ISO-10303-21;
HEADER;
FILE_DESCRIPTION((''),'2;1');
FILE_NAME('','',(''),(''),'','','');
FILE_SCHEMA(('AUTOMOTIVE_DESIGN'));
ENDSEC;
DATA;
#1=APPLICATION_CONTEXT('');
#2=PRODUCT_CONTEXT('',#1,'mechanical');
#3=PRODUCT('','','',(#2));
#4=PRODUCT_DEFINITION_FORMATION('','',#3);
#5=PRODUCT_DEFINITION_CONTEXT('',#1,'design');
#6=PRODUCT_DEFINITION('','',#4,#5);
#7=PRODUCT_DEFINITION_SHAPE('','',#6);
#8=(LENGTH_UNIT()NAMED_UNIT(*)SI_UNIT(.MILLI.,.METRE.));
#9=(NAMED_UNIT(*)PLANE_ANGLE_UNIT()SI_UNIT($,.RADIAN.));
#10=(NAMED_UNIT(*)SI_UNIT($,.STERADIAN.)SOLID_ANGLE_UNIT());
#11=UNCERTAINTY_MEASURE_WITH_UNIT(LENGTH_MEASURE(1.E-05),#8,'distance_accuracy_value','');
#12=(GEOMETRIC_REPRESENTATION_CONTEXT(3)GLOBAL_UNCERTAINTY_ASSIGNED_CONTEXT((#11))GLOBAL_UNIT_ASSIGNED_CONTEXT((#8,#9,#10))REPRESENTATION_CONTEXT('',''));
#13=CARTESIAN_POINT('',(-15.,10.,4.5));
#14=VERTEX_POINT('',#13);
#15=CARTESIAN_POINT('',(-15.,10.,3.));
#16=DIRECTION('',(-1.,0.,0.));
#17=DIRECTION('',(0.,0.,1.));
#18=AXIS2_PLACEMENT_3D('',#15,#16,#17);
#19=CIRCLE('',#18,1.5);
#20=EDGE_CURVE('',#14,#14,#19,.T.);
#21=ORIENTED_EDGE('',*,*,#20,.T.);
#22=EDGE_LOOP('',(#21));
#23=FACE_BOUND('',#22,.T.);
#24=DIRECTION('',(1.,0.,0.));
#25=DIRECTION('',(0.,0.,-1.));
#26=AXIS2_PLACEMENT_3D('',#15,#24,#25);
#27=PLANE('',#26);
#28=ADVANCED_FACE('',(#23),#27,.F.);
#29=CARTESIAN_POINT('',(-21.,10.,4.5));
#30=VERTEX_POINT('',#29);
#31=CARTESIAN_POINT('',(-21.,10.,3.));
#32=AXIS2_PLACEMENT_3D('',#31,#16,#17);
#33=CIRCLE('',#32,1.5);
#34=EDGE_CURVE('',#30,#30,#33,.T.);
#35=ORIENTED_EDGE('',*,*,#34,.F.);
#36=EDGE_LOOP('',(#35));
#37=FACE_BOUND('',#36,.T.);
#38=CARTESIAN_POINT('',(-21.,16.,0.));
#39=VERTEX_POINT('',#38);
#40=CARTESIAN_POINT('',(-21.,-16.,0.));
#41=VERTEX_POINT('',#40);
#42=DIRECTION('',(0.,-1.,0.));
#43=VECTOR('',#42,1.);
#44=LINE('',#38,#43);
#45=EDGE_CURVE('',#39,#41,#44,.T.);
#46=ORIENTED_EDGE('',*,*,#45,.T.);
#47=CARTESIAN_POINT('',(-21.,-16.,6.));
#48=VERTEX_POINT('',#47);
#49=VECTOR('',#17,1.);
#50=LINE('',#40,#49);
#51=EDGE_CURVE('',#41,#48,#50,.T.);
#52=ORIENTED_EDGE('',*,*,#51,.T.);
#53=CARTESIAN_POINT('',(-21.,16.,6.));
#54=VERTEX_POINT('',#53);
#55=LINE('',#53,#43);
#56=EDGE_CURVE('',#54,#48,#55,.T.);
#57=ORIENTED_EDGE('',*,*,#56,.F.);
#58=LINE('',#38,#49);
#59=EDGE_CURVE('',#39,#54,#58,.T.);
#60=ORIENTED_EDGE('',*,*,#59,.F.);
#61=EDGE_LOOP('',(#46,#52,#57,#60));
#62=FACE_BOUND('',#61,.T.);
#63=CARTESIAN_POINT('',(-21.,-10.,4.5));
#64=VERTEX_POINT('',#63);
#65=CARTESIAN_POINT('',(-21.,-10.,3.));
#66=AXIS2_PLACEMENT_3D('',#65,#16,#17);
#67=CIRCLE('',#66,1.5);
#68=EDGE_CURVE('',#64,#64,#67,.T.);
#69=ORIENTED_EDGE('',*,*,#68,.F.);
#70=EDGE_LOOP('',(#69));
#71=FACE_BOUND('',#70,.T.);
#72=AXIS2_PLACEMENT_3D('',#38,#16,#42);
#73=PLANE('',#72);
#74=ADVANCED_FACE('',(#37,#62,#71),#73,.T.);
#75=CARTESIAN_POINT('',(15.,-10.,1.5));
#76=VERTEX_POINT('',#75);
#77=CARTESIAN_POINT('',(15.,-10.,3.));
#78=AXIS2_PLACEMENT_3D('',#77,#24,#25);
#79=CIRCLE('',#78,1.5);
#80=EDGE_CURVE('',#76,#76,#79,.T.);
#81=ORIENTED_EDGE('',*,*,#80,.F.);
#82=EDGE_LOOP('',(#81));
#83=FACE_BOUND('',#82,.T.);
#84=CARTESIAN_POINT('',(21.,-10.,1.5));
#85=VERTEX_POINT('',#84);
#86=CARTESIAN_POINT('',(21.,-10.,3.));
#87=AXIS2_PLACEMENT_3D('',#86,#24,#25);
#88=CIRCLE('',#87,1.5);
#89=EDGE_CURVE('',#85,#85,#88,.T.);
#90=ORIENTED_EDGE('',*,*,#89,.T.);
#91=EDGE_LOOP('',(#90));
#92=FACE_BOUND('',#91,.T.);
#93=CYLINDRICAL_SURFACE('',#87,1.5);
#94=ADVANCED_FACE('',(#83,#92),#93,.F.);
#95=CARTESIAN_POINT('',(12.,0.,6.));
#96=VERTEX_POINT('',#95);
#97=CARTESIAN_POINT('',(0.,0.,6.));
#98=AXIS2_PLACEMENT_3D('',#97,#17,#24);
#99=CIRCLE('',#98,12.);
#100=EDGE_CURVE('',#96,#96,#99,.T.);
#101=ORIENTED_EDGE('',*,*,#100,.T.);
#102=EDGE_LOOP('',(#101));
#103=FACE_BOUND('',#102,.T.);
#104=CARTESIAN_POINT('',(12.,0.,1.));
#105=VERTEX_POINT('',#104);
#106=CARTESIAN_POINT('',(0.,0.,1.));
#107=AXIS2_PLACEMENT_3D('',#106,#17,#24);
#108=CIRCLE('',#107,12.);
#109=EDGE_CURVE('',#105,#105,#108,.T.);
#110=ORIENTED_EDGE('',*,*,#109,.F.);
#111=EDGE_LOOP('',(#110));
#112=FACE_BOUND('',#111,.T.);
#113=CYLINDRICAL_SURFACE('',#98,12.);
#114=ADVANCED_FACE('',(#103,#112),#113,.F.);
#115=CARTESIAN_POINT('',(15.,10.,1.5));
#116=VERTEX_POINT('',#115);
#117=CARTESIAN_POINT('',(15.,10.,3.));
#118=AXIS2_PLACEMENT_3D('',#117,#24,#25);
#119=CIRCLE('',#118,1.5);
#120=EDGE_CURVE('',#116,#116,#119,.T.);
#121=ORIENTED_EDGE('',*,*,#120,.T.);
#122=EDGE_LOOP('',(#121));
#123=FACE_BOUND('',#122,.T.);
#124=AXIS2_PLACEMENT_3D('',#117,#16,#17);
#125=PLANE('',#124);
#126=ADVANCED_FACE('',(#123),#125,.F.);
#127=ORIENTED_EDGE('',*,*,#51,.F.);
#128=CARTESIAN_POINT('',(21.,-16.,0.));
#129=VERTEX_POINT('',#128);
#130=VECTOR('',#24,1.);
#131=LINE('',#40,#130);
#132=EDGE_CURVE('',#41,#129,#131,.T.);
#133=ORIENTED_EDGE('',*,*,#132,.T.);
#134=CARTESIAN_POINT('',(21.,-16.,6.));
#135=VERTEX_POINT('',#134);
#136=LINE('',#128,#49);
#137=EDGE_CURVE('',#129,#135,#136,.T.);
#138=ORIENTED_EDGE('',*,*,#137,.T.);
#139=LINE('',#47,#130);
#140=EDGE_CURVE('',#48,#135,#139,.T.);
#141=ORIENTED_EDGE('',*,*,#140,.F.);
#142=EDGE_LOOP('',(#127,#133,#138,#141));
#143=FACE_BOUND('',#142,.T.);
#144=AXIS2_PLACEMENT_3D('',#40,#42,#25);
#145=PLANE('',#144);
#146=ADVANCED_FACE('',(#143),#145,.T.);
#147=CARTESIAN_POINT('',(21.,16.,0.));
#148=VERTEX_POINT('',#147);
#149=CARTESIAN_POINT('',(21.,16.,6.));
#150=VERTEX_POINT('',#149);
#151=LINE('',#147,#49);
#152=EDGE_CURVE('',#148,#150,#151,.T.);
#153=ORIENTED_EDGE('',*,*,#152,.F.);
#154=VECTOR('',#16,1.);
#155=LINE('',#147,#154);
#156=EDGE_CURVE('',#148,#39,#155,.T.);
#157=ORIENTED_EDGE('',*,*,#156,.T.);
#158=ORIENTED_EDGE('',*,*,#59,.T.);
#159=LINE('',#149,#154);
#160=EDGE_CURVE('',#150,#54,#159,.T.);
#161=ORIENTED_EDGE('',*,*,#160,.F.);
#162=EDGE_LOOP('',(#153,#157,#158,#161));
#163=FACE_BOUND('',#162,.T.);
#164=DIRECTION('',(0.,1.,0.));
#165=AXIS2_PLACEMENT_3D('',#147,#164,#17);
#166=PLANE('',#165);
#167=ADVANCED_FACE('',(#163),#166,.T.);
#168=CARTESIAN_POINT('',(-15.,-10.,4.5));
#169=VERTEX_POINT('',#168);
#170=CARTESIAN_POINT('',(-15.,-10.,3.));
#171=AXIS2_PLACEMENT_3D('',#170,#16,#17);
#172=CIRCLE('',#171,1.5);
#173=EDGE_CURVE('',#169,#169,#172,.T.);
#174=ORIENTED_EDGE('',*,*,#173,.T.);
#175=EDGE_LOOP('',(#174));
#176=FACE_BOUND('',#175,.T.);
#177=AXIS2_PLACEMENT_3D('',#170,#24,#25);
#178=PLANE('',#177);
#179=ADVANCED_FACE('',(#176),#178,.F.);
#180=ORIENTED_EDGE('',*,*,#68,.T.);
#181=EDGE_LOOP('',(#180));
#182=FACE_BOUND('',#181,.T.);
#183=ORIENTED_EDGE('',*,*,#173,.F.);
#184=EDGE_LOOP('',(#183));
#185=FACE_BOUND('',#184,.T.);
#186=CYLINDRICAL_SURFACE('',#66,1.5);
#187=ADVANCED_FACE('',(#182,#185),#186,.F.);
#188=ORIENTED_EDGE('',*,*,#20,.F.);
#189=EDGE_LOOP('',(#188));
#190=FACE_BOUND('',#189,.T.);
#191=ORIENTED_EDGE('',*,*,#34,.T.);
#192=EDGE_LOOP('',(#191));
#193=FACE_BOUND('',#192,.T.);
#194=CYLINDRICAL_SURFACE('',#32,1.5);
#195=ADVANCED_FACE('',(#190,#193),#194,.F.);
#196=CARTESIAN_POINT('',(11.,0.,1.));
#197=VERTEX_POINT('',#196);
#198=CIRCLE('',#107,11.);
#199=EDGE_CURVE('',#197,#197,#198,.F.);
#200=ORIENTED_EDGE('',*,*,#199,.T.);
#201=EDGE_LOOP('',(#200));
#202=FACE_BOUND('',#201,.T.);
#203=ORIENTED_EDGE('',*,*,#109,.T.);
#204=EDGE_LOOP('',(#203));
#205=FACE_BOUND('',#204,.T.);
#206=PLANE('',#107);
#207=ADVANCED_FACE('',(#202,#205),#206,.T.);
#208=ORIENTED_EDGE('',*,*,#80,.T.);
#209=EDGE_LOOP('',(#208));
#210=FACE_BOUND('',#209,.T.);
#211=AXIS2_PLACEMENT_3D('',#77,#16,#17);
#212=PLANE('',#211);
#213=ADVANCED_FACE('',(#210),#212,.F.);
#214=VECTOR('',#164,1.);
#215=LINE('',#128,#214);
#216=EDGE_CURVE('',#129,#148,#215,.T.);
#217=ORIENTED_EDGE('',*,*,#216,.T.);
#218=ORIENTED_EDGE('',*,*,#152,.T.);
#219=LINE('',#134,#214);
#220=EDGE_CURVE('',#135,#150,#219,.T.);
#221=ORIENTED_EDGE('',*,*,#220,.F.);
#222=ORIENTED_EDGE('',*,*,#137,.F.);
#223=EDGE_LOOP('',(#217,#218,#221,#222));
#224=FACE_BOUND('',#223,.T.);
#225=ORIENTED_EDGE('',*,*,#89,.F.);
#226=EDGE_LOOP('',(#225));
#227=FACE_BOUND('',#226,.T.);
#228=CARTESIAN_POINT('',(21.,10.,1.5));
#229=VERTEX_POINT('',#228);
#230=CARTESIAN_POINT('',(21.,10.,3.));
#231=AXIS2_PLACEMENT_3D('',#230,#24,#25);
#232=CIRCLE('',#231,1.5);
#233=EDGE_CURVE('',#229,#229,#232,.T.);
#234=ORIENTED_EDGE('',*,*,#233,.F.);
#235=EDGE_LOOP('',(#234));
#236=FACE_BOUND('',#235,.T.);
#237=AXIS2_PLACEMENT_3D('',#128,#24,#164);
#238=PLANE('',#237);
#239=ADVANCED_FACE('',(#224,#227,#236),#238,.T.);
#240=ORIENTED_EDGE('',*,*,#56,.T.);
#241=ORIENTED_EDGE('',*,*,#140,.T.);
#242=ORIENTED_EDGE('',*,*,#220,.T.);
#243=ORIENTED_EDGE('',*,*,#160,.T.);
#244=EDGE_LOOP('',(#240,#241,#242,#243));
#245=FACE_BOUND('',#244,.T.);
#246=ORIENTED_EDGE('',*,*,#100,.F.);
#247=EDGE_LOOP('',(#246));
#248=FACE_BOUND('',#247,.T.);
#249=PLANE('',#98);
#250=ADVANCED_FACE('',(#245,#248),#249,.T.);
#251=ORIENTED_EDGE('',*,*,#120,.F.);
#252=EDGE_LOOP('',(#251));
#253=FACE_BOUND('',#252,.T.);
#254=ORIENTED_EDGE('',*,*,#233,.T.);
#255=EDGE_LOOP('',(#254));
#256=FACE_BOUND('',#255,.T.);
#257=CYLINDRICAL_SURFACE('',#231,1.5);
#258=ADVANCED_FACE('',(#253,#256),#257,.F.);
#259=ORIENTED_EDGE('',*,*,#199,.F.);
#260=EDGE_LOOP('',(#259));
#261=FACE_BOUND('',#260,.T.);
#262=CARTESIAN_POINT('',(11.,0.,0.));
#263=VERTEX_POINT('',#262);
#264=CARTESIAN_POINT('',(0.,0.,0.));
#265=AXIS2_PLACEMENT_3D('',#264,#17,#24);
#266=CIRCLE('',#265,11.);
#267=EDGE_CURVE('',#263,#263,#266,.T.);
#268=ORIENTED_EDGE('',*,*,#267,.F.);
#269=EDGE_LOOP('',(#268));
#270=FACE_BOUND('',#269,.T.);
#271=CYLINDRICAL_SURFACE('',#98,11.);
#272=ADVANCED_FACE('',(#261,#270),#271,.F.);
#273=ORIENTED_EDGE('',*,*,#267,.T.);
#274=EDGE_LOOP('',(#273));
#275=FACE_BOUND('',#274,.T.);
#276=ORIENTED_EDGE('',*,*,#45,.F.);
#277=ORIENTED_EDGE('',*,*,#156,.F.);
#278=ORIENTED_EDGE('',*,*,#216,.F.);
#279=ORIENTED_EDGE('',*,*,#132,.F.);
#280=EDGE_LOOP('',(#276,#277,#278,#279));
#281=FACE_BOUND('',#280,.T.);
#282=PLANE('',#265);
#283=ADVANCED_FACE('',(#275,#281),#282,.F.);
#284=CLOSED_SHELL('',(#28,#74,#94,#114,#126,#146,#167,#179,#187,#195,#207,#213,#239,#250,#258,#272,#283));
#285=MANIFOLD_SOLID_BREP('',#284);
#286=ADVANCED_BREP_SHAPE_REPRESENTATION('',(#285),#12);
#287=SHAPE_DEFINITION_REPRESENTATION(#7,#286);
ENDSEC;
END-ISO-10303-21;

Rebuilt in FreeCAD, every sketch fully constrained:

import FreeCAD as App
import Part
import Sketcher
from FreeCAD import Vector
Q = App.Units.Quantity


def add_polygon(sketch, points):
    """Adds a closed chain of lines whose ends are joined by coincident constraints."""
    first, n = sketch.GeometryCount, len(points)
    for a, b in zip(points, points[1:] + points[:1]):
        sketch.addGeometry(Part.LineSegment(App.Vector(*a, 0), App.Vector(*b, 0)), False)
    for i in range(n):
        sketch.addConstraint(Sketcher.Constraint("Coincident", first + i, 2, first + (i + 1) % n, 1))

doc = App.newDocument("Part")
params = doc.addObject("Spreadsheet::Sheet", "Params")
for row, (alias, value) in enumerate([
    ("sketch1_width", "42 mm"),
    ("sketch1_height", "32 mm"),
    ("pad1_length", "6 mm"),
    ("sketch2_diameter", "3 mm"),
    ("hole_diameter", "3 mm"),
    ("hole_depth", "6 mm"),
    ("sketch3_diameter", "3 mm"),
    ("hole2_diameter", "3 mm"),
    ("hole2_depth", "6 mm"),
    ("sketch4_diameter", "22 mm"),
    ("hole3_diameter", "22 mm"),
    ("hole3_cbore_diameter", "24 mm"),
    ("hole3_cbore_depth", "4 mm"),
    ("sketch5_diameter", "24 mm"),
    ("pocket1_length", "5 mm"),
], start=1):
    params.set(f"A{row}", alias)
    params.set(f"B{row}", "=" + value)
    params.setAlias(f"B{row}", alias)

body = doc.addObject("PartDesign::Body", "Body")

sketch1 = body.newObject("Sketcher::SketchObject", "Sketch")
sketch1.AttachmentSupport = (doc.getObject("XY_Plane"), [""])
sketch1.MapMode = "FlatFace"
sketch1.AttachmentOffset = App.Placement(Vector(0, 0, 6), App.Rotation())
add_polygon(sketch1, [(-21, 16), (-21, -16), (21, -16), (21, 16)])
sketch1.addConstraint(Sketcher.Constraint("Vertical", 0))
sketch1.addConstraint(Sketcher.Constraint("Horizontal", 1))
sketch1.addConstraint(Sketcher.Constraint("Vertical", 2))
sketch1.addConstraint(Sketcher.Constraint("Horizontal", 3))
sketch1.addConstraint(Sketcher.Constraint("Symmetric", 0, 2, 2, 2, -1, 1))
sketch1.addConstraint(Sketcher.Constraint("DistanceX", 1, 1, 1, 2, Q("42 mm")))
sketch1.addConstraint(Sketcher.Constraint("DistanceY", 0, 2, 0, 1, Q("32 mm")))
sketch1.setExpression("Constraints[9]", "Params.sketch1_width")
sketch1.setExpression("Constraints[10]", "Params.sketch1_height")
pad1 = body.newObject("PartDesign::Pad", "Pad")
pad1.Profile = sketch1
pad1.setExpression("Length", "Params.pad1_length")
pad1.Reversed = True

sketch2 = body.newObject("Sketcher::SketchObject", "Sketch001")
sketch2.AttachmentSupport = (doc.getObject("YZ_Plane"), [""])
sketch2.MapMode = "FlatFace"
sketch2.AttachmentOffset = App.Placement(Vector(0, 0, 21), App.Rotation())
sketch2.addGeometry(Part.Circle(Vector(-10, 3, 0), Vector(0, 0, 1), 1.5), False)
sketch2.addGeometry(Part.Circle(Vector(10, 3, 0), Vector(0, 0, 1), 1.5), False)
sketch2.addConstraint(Sketcher.Constraint("Equal", 0, 1))
sketch2.addConstraint(Sketcher.Constraint("Symmetric", 0, 3, 1, 3, -2))
sketch2.addConstraint(Sketcher.Constraint("Diameter", 0, Q("3 mm")))
sketch2.addConstraint(Sketcher.Constraint("DistanceX", 0, 3, -1, 1, Q("10 mm")))
sketch2.addConstraint(Sketcher.Constraint("DistanceY", -1, 1, 0, 3, Q("3 mm")))
sketch2.setExpression("Constraints[2]", "Params.sketch2_diameter")
doc.recompute()
hole = body.newObject("PartDesign::Hole", "Hole")
hole.Profile = sketch2
hole.ThreadType = "None"
hole.setExpression("Diameter", "Params.hole_diameter")
hole.DepthType = "Dimension"
hole.setExpression("Depth", "Params.hole_depth")
hole.DrillPoint = "Flat"

sketch3 = body.newObject("Sketcher::SketchObject", "Sketch002")
sketch3.AttachmentSupport = (doc.getObject("YZ_Plane"), [""])
sketch3.MapMode = "FlatFace"
sketch3.AttachmentOffset = App.Placement(Vector(0, 0, -21), App.Rotation())
sketch3.addGeometry(Part.Circle(Vector(-10, 3, 0), Vector(0, 0, 1), 1.5), False)
sketch3.addGeometry(Part.Circle(Vector(10, 3, 0), Vector(0, 0, 1), 1.5), False)
sketch3.addConstraint(Sketcher.Constraint("Equal", 0, 1))
sketch3.addConstraint(Sketcher.Constraint("Symmetric", 0, 3, 1, 3, -2))
sketch3.addConstraint(Sketcher.Constraint("Diameter", 0, Q("3 mm")))
sketch3.addConstraint(Sketcher.Constraint("DistanceX", 0, 3, -1, 1, Q("10 mm")))
sketch3.addConstraint(Sketcher.Constraint("DistanceY", -1, 1, 0, 3, Q("3 mm")))
sketch3.setExpression("Constraints[2]", "Params.sketch3_diameter")
doc.recompute()
hole2 = body.newObject("PartDesign::Hole", "Hole001")
hole2.Profile = sketch3
hole2.ThreadType = "None"
hole2.setExpression("Diameter", "Params.hole2_diameter")
hole2.DepthType = "Dimension"
hole2.setExpression("Depth", "Params.hole2_depth")
hole2.DrillPoint = "Flat"
hole2.Reversed = True

sketch4 = body.newObject("Sketcher::SketchObject", "Sketch003")
sketch4.AttachmentSupport = (doc.getObject("XY_Plane"), [""])
sketch4.MapMode = "FlatFace"
sketch4.AttachmentOffset = App.Placement(Vector(0, 0, 6), App.Rotation())
sketch4.addGeometry(Part.Circle(Vector(0, 0, 0), Vector(0, 0, 1), 11), False)
sketch4.addConstraint(Sketcher.Constraint("Coincident", 0, 3, -1, 1))
sketch4.addConstraint(Sketcher.Constraint("Diameter", 0, Q("22 mm")))
sketch4.setExpression("Constraints[1]", "Params.sketch4_diameter")
doc.recompute()
hole3 = body.newObject("PartDesign::Hole", "Hole002")
hole3.Profile = sketch4
hole3.ThreadType = "None"
hole3.setExpression("Diameter", "Params.hole3_diameter")
hole3.DepthType = "ThroughAll"
hole3.HoleCutType = "Counterbore"
hole3.setExpression("HoleCutDiameter", "Params.hole3_cbore_diameter")
hole3.setExpression("HoleCutDepth", "Params.hole3_cbore_depth")

sketch5 = body.newObject("Sketcher::SketchObject", "Sketch004")
sketch5.AttachmentSupport = (doc.getObject("XY_Plane"), [""])
sketch5.MapMode = "FlatFace"
sketch5.AttachmentOffset = App.Placement(Vector(0, 0, 6), App.Rotation())
sketch5.addGeometry(Part.Circle(Vector(0, 0, 0), Vector(0, 0, 1), 12), False)
sketch5.addConstraint(Sketcher.Constraint("Coincident", 0, 3, -1, 1))
sketch5.addConstraint(Sketcher.Constraint("Diameter", 0, Q("24 mm")))
sketch5.setExpression("Constraints[1]", "Params.sketch5_diameter")
pocket1 = body.newObject("PartDesign::Pocket", "Pocket")
pocket1.Profile = sketch5
pocket1.setExpression("Length", "Params.pocket1_length")

doc.recompute()
